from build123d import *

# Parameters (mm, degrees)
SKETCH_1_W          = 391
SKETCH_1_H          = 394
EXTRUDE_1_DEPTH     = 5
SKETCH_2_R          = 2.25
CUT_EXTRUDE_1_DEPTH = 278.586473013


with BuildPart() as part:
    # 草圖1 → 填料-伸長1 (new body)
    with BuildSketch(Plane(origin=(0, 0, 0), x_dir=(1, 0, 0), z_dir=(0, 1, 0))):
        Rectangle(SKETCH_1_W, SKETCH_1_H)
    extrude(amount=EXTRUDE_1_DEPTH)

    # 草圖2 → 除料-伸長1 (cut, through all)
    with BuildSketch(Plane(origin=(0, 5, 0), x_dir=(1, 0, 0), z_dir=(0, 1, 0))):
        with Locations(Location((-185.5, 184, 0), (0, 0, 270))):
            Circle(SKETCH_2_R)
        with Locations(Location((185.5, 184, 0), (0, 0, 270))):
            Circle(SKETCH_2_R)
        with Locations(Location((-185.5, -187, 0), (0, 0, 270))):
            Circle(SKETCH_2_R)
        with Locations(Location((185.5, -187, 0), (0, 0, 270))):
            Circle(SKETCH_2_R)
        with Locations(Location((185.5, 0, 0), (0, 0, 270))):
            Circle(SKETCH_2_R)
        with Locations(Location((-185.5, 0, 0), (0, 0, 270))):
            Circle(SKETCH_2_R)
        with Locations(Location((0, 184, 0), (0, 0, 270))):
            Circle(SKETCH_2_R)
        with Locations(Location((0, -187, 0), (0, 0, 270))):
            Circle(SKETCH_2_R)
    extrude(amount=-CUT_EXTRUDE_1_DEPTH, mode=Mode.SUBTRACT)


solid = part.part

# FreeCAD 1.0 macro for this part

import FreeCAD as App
import Part
import Sketcher
from FreeCAD import Vector
Q = App.Units.Quantity


def add_polygon(sketch, points):
    """Adds a closed chain of lines whose ends are joined by coincident constraints."""
    first, n = sketch.GeometryCount, len(points)
    for a, b in zip(points, points[1:] + points[:1]):
        sketch.addGeometry(Part.LineSegment(App.Vector(*a, 0), App.Vector(*b, 0)), False)
    for i in range(n):
        sketch.addConstraint(Sketcher.Constraint("Coincident", first + i, 2, first + (i + 1) % n, 1))

doc = App.newDocument("Part")
body = doc.addObject("PartDesign::Body", "Body")

# Sketch on XZ plane
sketch1 = doc.addObject("Sketcher::SketchObject", "Sketch")
body.addObject(sketch1)
sketch1.AttachmentSupport = (doc.XZ_Plane, [""])
sketch1.MapMode = "FlatFace"
add_polygon(sketch1, [(-196, -197), (-196, 197), (196, 197), (196, -197)])  # lines 0-3
sketch1.addConstraint(Sketcher.Constraint("Vertical", 0))
sketch1.addConstraint(Sketcher.Constraint("Horizontal", 1))
sketch1.addConstraint(Sketcher.Constraint("Vertical", 2))
sketch1.addConstraint(Sketcher.Constraint("Horizontal", 3))
sketch1.addConstraint(Sketcher.Constraint("Symmetric", 0, 2, 2, 2, -1, 1))
sketch1.addConstraint(Sketcher.Constraint("DistanceX", 1, 1, 1, 2, Q("391 mm")))
sketch1.addConstraint(Sketcher.Constraint("DistanceY", 0, 1, 0, 2, Q("394 mm")))
pad1 = doc.addObject("PartDesign::Pad", "Pad")
body.addObject(pad1)
pad1.Profile = sketch1
pad1.Length = 5
pad1.Reversed = True

# Sketch on XZ plane
sketch2 = doc.addObject("Sketcher::SketchObject", "Sketch001")
body.addObject(sketch2)
sketch2.AttachmentSupport = (doc.XZ_Plane, [""])
sketch2.MapMode = "FlatFace"
sketch2.AttachmentOffset = App.Placement(Vector(0, 0, -5), App.Rotation())
sketch2.addGeometry(Part.Circle(Vector(-185.5, -184, 0), Vector(0, 0, 1), 2.2), False)
sketch2.addGeometry(Part.Circle(Vector(185.5, -184, 0), Vector(0, 0, 1), 2.2), False)
sketch2.addGeometry(Part.Circle(Vector(-185.5, 187, 0), Vector(0, 0, 1), 2.2), False)
sketch2.addGeometry(Part.Circle(Vector(185.5, 187, 0), Vector(0, 0, 1), 2.2), False)
sketch2.addGeometry(Part.Circle(Vector(185.5, 0, 0), Vector(0, 0, 1), 2.2), False)
sketch2.addGeometry(Part.Circle(Vector(-185.5, 0, 0), Vector(0, 0, 1), 2.2), False)
sketch2.addGeometry(Part.Circle(Vector(0, -184, 0), Vector(0, 0, 1), 2.2), False)
sketch2.addGeometry(Part.Circle(Vector(0, 187, 0), Vector(0, 0, 1), 2.2), False)
sketch2.addConstraint(Sketcher.Constraint("Equal", 0, 1))
sketch2.addConstraint(Sketcher.Constraint("Equal", 1, 2))
sketch2.addConstraint(Sketcher.Constraint("Equal", 2, 3))
sketch2.addConstraint(Sketcher.Constraint("Equal", 3, 4))
sketch2.addConstraint(Sketcher.Constraint("Equal", 4, 5))
sketch2.addConstraint(Sketcher.Constraint("Equal", 5, 6))
sketch2.addConstraint(Sketcher.Constraint("Equal", 6, 7))
sketch2.addConstraint(Sketcher.Constraint("Symmetric", 4, 3, 5, 3, -1, 1))
sketch2.addConstraint(Sketcher.Constraint("Symmetric", 0, 3, 1, 3, -2))
sketch2.addConstraint(Sketcher.Constraint("Symmetric", 2, 3, 3, 3, -2))
sketch2.addConstraint(Sketcher.Constraint("PointOnObject", 4, 3, -1))
sketch2.addConstraint(Sketcher.Constraint("PointOnObject", 6, 3, -2))
sketch2.addConstraint(Sketcher.Constraint("PointOnObject", 7, 3, -2))
sketch2.addConstraint(Sketcher.Constraint("Horizontal", 1, 3, 6, 3))
sketch2.addConstraint(Sketcher.Constraint("Horizontal", 3, 3, 7, 3))
sketch2.addConstraint(Sketcher.Constraint("Vertical", 0, 3, 2, 3))
sketch2.addConstraint(Sketcher.Constraint("Vertical", 3, 3, 4, 3))
sketch2.addConstraint(Sketcher.Constraint("Diameter", 0, Q("4.5 mm")))
sketch2.addConstraint(Sketcher.Constraint("DistanceY", 0, 3, -1, 1, Q("184 mm")))
sketch2.addConstraint(Sketcher.Constraint("DistanceY", -1, 1, 2, 3, Q("187 mm")))
sketch2.addConstraint(Sketcher.Constraint("DistanceX", 0, 3, 1, 3, Q("371 mm")))
pocket1 = doc.addObject("PartDesign::Pocket", "Pocket")
body.addObject(pocket1)
pocket1.Profile = sketch2
pocket1.Type = "ThroughAll"
pocket1.Reversed = True

doc.recompute()
